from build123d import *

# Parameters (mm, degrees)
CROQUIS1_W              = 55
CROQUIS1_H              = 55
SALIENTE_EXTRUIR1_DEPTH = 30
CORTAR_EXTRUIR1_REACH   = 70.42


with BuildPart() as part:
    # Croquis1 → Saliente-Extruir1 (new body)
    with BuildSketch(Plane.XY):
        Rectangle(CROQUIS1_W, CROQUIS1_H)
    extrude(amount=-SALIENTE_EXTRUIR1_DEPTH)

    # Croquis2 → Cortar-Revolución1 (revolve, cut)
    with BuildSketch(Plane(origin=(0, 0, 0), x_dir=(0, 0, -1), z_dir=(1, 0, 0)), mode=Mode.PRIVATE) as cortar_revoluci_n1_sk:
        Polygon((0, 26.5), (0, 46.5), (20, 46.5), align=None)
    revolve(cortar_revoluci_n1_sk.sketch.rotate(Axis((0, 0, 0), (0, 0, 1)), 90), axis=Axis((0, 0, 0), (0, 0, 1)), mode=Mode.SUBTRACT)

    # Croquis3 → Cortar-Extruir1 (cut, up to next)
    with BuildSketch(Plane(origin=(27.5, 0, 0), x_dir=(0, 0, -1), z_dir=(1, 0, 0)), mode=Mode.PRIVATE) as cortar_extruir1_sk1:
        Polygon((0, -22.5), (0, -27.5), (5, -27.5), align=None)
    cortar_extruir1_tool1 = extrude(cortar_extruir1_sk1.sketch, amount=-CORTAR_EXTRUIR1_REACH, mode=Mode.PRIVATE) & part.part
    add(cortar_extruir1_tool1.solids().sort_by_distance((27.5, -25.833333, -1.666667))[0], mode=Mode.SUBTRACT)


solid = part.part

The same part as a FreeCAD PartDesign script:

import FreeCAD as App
import Part
import Sketcher
from FreeCAD import Vector

doc = App.newDocument("Part")
body = doc.addObject("PartDesign::Body", "Body")

sketch1 = doc.addObject("Sketcher::SketchObject", "Sketch")
body.addObject(sketch1)
sketch1.AttachmentSupport = (doc.XY_Plane, [""])
sketch1.MapMode = "FlatFace"
sketch1.addGeometry([
    Part.LineSegment(Vector(-28, 28, 0), Vector(-28, -28, 0)),
    Part.LineSegment(Vector(-28, -28, 0), Vector(28, -28, 0)),
    Part.LineSegment(Vector(28, -28, 0), Vector(28, 28, 0)),
    Part.LineSegment(Vector(28, 28, 0), Vector(-28, 28, 0)),
], False)
sketch1.addConstraint([
    Sketcher.Constraint("Coincident", 0, 2, 1, 1),
    Sketcher.Constraint("Coincident", 1, 2, 2, 1),
    Sketcher.Constraint("Coincident", 2, 2, 3, 1),
    Sketcher.Constraint("Coincident", 3, 2, 0, 1),
    Sketcher.Constraint("Vertical", 0),
    Sketcher.Constraint("Horizontal", 1),
    Sketcher.Constraint("Vertical", 2),
    Sketcher.Constraint("Horizontal", 3),
    Sketcher.Constraint("Symmetric", 0, 2, 2, 2, -1, 1),
    Sketcher.Constraint("Equal", 3, 0),
    Sketcher.Constraint("DistanceX", 1, 1, 1, 2, 55.0),
])
pad1 = doc.addObject("PartDesign::Pad", "Pad")
body.addObject(pad1)
pad1.Profile = sketch1
pad1.Length = 30
pad1.Reversed = True

sketch2 = doc.addObject("Sketcher::SketchObject", "Sketch001")
body.addObject(sketch2)
sketch2.AttachmentSupport = (doc.YZ_Plane, [""])
sketch2.MapMode = "FlatFace"
sketch2.addGeometry([
    Part.LineSegment(Vector(46, 0, 0), Vector(26, 0, 0)),
    Part.LineSegment(Vector(26, 0, 0), Vector(46, -20, 0)),
    Part.LineSegment(Vector(46, -20, 0), Vector(46, 0, 0)),
], False)
sketch2.addConstraint([
    Sketcher.Constraint("Coincident", 0, 2, 1, 1),
    Sketcher.Constraint("Coincident", 1, 2, 2, 1),
    Sketcher.Constraint("Coincident", 2, 2, 0, 1),
    Sketcher.Constraint("Horizontal", 0),
    Sketcher.Constraint("Vertical", 2),
    Sketcher.Constraint("PointOnObject", 0, 2, -1),
    Sketcher.Constraint("Equal", 0, 2),
    Sketcher.Constraint("DistanceX", 0, 2, 0, 1, 20.0),
    Sketcher.Constraint("DistanceX", -1, 1, 0, 2, 26.5),
])
groove = doc.addObject("PartDesign::Groove", "Groove")
body.addObject(groove)
groove.Profile = sketch2
groove.ReferenceAxis = (sketch2, ["V_Axis"])
groove.Angle = 360

sketch3 = doc.addObject("Sketcher::SketchObject", "Sketch002")
body.addObject(sketch3)
sketch3.AttachmentSupport = (doc.YZ_Plane, [""])
sketch3.MapMode = "FlatFace"
sketch3.AttachmentOffset = App.Placement(Vector(0, 0, 27.5), App.Rotation())
sketch3.addGeometry([
    Part.LineSegment(Vector(-22, 0, 0), Vector(-28, 0, 0)),
    Part.LineSegment(Vector(-28, 0, 0), Vector(-28, -5, 0)),
    Part.LineSegment(Vector(-28, -5, 0), Vector(-22, 0, 0)),
], False)
sketch3.addConstraint([
    Sketcher.Constraint("Coincident", 0, 2, 1, 1),
    Sketcher.Constraint("Coincident", 1, 2, 2, 1),
    Sketcher.Constraint("Coincident", 2, 2, 0, 1),
    Sketcher.Constraint("Horizontal", 0),
    Sketcher.Constraint("Vertical", 1),
    Sketcher.Constraint("PointOnObject", 0, 2, -1),
    Sketcher.Constraint("Equal", 0, 1),
    Sketcher.Constraint("DistanceX", 0, 2, 0, 1, 5.0),
    Sketcher.Constraint("DistanceX", 0, 2, -1, 1, 27.5),
])
pocket1 = doc.addObject("PartDesign::Pocket", "Pocket")
body.addObject(pocket1)
pocket1.Profile = sketch3
pocket1.Type = "UpToFirst"

doc.recompute()
